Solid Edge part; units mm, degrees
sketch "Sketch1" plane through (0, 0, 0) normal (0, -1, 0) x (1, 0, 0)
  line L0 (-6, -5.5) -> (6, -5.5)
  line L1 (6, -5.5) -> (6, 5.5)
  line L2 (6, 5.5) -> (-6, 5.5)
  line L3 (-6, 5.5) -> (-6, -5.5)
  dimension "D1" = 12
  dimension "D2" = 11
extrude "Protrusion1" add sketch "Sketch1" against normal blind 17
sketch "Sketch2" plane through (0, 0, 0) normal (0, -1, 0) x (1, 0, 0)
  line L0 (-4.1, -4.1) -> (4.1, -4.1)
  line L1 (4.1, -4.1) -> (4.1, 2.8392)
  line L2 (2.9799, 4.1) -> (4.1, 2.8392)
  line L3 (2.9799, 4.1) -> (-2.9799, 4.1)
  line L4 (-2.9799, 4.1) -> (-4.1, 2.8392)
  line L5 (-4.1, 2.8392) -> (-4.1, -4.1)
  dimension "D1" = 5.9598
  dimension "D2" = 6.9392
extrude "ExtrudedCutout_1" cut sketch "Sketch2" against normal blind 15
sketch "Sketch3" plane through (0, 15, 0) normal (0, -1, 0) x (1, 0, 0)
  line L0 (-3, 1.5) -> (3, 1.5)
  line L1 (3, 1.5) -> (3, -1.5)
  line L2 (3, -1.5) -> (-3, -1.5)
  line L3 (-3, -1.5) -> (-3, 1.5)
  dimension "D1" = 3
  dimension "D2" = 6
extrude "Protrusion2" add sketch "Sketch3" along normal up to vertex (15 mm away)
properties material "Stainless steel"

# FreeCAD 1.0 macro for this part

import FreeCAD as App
import Part
import Sketcher

doc = App.newDocument("Part")
body = doc.addObject("PartDesign::Body", "Body")

# Sketch on XZ plane
sketch1 = doc.addObject("Sketcher::SketchObject", "Sketch")
body.addObject(sketch1)
sketch1.AttachmentSupport = (doc.XZ_Plane, [""])
sketch1.MapMode = "FlatFace"
sketch1.addGeometry(Part.LineSegment(App.Vector(-6, 6, 0), App.Vector(-6, -6, 0)), False)
sketch1.addGeometry(Part.LineSegment(App.Vector(-6, -6, 0), App.Vector(6, -6, 0)), False)
sketch1.addGeometry(Part.LineSegment(App.Vector(6, -6, 0), App.Vector(6, 6, 0)), False)
sketch1.addGeometry(Part.LineSegment(App.Vector(6, 6, 0), App.Vector(-6, 6, 0)), False)
sketch1.addConstraint(Sketcher.Constraint("Coincident", 0, 2, 1, 1))
sketch1.addConstraint(Sketcher.Constraint("Coincident", 1, 2, 2, 1))
sketch1.addConstraint(Sketcher.Constraint("Coincident", 2, 2, 3, 1))
sketch1.addConstraint(Sketcher.Constraint("Coincident", 3, 2, 0, 1))
sketch1.addConstraint(Sketcher.Constraint("Vertical", 0))
sketch1.addConstraint(Sketcher.Constraint("Horizontal", 1))
sketch1.addConstraint(Sketcher.Constraint("Vertical", 2))
sketch1.addConstraint(Sketcher.Constraint("Horizontal", 3))
sketch1.addConstraint(Sketcher.Constraint("Symmetric", 0, 2, 2, 2, -1, 1))
sketch1.addConstraint(Sketcher.Constraint("DistanceX", 0, 2, -1, 1, 6.0))
sketch1.addConstraint(Sketcher.Constraint("DistanceY", 0, 2, 0, 1, 11.0))
pad1 = doc.addObject("PartDesign::Pad", "Pad")
body.addObject(pad1)
pad1.Profile = sketch1
pad1.Length = 17
pad1.Reversed = True

# Sketch on XZ plane
sketch2 = doc.addObject("Sketcher::SketchObject", "Sketch001")
body.addObject(sketch2)
sketch2.AttachmentSupport = (doc.XZ_Plane, [""])
sketch2.MapMode = "FlatFace"
sketch2.addGeometry(Part.LineSegment(App.Vector(-4.1, 2.8, 0), App.Vector(-4.1, -4.1, 0)), False)
sketch2.addGeometry(Part.LineSegment(App.Vector(-4.1, -4.1, 0), App.Vector(4.1, -4.1, 0)), False)
sketch2.addGeometry(Part.LineSegment(App.Vector(4.1, -4.1, 0), App.Vector(4.1, 2.8, 0)), False)
sketch2.addGeometry(Part.LineSegment(App.Vector(4.1, 2.8, 0), App.Vector(3, 4.1, 0)), False)
sketch2.addGeometry(Part.LineSegment(App.Vector(3, 4.1, 0), App.Vector(-3, 4.1, 0)), False)
sketch2.addGeometry(Part.LineSegment(App.Vector(-3, 4.1, 0), App.Vector(-4.1, 2.8, 0)), False)
sketch2.addConstraint(Sketcher.Constraint("Coincident", 0, 2, 1, 1))
sketch2.addConstraint(Sketcher.Constraint("Coincident", 1, 2, 2, 1))
sketch2.addConstraint(Sketcher.Constraint("Coincident", 2, 2, 3, 1))
sketch2.addConstraint(Sketcher.Constraint("Coincident", 3, 2, 4, 1))
sketch2.addConstraint(Sketcher.Constraint("Coincident", 4, 2, 5, 1))
sketch2.addConstraint(Sketcher.Constraint("Coincident", 5, 2, 0, 1))
sketch2.addConstraint(Sketcher.Constraint("Vertical", 0))
sketch2.addConstraint(Sketcher.Constraint("Horizontal", 1))
sketch2.addConstraint(Sketcher.Constraint("Vertical", 2))
sketch2.addConstraint(Sketcher.Constraint("Horizontal", 4))
sketch2.addConstraint(Sketcher.Constraint("Symmetric", 2, 2, 5, 2, -2))
sketch2.addConstraint(Sketcher.Constraint("Equal", 3, 5))
sketch2.addConstraint(Sketcher.Constraint("DistanceX", 0, 2, -1, 1, 4.1))
sketch2.addConstraint(Sketcher.Constraint("DistanceY", 0, 2, -1, 1, 4.1))
sketch2.addConstraint(Sketcher.Constraint("DistanceY", -1, 1, 3, 2, 4.1))
sketch2.addConstraint(Sketcher.Constraint("DistanceX", -1, 1, 3, 2, 2.98))
sketch2.addConstraint(Sketcher.Constraint("DistanceY", 0, 2, 0, 1, 6.9392))
pocket1 = doc.addObject("PartDesign::Pocket", "Pocket")
body.addObject(pocket1)
pocket1.Profile = sketch2
pocket1.Length = 15

# Sketch on XZ plane
sketch3 = doc.addObject("Sketcher::SketchObject", "Sketch002")
body.addObject(sketch3)
sketch3.AttachmentSupport = (doc.XZ_Plane, [""])
sketch3.MapMode = "FlatFace"
sketch3.AttachmentOffset = App.Placement(App.Vector(0, 0, -15), App.Rotation())
sketch3.addGeometry(Part.LineSegment(App.Vector(3, 1.5, 0), App.Vector(-3, 1.5, 0)), False)
sketch3.addGeometry(Part.LineSegment(App.Vector(-3, 1.5, 0), App.Vector(-3, -1.5, 0)), False)
sketch3.addGeometry(Part.LineSegment(App.Vector(-3, -1.5, 0), App.Vector(3, -1.5, 0)), False)
sketch3.addGeometry(Part.LineSegment(App.Vector(3, -1.5, 0), App.Vector(3, 1.5, 0)), False)
sketch3.addConstraint(Sketcher.Constraint("Coincident", 0, 2, 1, 1))
sketch3.addConstraint(Sketcher.Constraint("Coincident", 1, 2, 2, 1))
sketch3.addConstraint(Sketcher.Constraint("Coincident", 2, 2, 3, 1))
sketch3.addConstraint(Sketcher.Constraint("Coincident", 3, 2, 0, 1))
sketch3.addConstraint(Sketcher.Constraint("Horizontal", 0))
sketch3.addConstraint(Sketcher.Constraint("Vertical", 1))
sketch3.addConstraint(Sketcher.Constraint("Horizontal", 2))
sketch3.addConstraint(Sketcher.Constraint("Vertical", 3))
sketch3.addConstraint(Sketcher.Constraint("Symmetric", 0, 2, 2, 2, -1, 1))
sketch3.addConstraint(Sketcher.Constraint("DistanceY", 1, 2, 1, 1, 3.0))
sketch3.addConstraint(Sketcher.Constraint("DistanceX", 0, 2, -1, 1, 3.0))
pad2 = doc.addObject("PartDesign::Pad", "Pad001")
body.addObject(pad2)
pad2.Profile = sketch3
pad2.Length = 15

doc.recompute()
